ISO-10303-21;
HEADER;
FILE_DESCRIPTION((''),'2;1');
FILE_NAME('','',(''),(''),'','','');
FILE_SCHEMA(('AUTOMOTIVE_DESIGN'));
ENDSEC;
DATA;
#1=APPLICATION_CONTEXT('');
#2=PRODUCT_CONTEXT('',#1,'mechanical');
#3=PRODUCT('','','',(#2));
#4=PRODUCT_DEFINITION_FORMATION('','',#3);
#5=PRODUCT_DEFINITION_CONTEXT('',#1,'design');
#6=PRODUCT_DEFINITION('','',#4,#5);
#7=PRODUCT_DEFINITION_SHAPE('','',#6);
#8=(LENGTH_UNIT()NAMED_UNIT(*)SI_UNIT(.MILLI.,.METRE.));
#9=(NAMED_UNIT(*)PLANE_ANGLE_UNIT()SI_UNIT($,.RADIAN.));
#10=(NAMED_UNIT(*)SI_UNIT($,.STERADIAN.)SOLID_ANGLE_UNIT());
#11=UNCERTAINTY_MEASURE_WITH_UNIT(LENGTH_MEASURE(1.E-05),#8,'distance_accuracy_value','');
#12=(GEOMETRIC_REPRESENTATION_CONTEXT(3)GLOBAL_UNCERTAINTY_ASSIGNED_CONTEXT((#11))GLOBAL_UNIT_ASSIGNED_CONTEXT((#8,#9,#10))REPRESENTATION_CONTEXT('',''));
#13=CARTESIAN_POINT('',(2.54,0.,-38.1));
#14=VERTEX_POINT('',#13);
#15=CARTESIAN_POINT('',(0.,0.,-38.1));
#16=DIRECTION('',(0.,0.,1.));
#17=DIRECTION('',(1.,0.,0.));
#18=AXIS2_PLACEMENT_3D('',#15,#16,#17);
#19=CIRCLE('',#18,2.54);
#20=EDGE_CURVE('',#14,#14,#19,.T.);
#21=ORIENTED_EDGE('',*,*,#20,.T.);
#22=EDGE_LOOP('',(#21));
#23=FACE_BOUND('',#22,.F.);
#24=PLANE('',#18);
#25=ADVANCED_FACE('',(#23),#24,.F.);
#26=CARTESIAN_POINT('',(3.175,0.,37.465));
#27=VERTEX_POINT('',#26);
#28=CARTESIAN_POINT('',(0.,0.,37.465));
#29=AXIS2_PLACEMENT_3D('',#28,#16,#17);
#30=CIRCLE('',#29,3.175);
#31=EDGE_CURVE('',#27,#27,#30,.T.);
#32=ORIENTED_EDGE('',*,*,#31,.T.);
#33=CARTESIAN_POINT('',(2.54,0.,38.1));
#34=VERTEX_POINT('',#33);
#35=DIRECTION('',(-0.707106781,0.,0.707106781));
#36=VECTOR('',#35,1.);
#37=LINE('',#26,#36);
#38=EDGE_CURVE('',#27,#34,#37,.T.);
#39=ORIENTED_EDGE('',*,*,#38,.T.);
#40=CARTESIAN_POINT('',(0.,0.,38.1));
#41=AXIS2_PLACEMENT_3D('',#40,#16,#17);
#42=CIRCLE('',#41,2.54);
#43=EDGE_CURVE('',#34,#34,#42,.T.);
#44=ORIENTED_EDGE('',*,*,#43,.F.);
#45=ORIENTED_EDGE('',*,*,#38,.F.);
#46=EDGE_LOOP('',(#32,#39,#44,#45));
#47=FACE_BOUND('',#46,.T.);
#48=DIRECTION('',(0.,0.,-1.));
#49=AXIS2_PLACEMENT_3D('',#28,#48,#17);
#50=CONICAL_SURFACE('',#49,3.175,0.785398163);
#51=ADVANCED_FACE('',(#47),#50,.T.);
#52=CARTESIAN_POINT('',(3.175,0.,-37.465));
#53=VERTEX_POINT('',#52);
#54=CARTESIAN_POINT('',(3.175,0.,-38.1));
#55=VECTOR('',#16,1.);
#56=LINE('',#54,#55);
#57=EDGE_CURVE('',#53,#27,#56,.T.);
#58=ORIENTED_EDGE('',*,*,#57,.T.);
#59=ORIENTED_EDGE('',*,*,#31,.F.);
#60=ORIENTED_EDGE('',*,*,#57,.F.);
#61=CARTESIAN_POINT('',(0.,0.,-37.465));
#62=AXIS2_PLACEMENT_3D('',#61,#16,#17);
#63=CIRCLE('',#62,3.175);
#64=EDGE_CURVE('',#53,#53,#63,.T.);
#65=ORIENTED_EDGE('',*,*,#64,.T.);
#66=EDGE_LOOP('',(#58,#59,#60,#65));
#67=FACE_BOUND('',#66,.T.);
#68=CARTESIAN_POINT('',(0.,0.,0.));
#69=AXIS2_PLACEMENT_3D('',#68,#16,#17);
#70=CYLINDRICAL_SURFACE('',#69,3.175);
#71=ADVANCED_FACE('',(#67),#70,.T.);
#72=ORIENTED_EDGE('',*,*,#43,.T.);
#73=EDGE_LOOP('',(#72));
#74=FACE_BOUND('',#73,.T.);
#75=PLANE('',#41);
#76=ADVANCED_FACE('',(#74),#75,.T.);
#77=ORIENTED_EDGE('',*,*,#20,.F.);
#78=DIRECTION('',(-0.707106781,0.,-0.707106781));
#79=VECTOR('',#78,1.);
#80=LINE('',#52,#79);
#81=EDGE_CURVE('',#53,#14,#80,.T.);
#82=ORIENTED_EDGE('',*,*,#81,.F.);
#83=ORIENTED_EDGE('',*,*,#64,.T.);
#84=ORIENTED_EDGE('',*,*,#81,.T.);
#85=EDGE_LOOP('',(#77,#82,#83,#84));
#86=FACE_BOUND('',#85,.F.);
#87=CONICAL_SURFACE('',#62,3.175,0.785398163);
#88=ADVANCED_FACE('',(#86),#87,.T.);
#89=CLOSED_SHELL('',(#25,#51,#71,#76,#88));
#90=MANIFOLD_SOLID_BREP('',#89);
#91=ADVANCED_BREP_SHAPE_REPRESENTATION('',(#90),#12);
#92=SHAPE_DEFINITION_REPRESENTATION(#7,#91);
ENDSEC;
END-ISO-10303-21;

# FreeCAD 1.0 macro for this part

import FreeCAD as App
import Part
import Sketcher
Q = App.Units.Quantity


def edges_at(feature, points):
    """Names of the edges that pass closest to the given points."""
    edges = feature.Shape.Edges
    near = lambda p: min(range(len(edges)), key=lambda i: edges[i].distToShape(Part.Vertex(*p))[0])
    return sorted({f"Edge{near(p) + 1}" for p in points})

doc = App.newDocument("Part")
body = doc.addObject("PartDesign::Body", "Body")

# Sketch on XY plane
sketch1 = doc.addObject("Sketcher::SketchObject", "Sketch")
body.addObject(sketch1)
sketch1.AttachmentSupport = (doc.XY_Plane, [""])
sketch1.MapMode = "FlatFace"
sketch1.addGeometry(Part.Circle(App.Vector(0, 0, 0), App.Vector(0, 0, 1), 3.2), False)
sketch1.addConstraint([
    Sketcher.Constraint("Coincident", 0, 3, -1, 1),
    Sketcher.Constraint("Diameter", 0, Q("0.25 in")),
])
pad1 = doc.addObject("PartDesign::Pad", "Pad")
body.addObject(pad1)
pad1.Profile = sketch1
pad1.Length = Q("3 in")
pad1.Midplane = True
doc.recompute()

chamfer = doc.addObject("PartDesign::Chamfer", "Chamfer")
body.addObject(chamfer)
chamfer.Base = (pad1, edges_at(pad1, [(-3.175, 0, -38.1), (-3.175, 0, 38.1)]))
chamfer.Size = Q("0.025 in")

doc.recompute()
